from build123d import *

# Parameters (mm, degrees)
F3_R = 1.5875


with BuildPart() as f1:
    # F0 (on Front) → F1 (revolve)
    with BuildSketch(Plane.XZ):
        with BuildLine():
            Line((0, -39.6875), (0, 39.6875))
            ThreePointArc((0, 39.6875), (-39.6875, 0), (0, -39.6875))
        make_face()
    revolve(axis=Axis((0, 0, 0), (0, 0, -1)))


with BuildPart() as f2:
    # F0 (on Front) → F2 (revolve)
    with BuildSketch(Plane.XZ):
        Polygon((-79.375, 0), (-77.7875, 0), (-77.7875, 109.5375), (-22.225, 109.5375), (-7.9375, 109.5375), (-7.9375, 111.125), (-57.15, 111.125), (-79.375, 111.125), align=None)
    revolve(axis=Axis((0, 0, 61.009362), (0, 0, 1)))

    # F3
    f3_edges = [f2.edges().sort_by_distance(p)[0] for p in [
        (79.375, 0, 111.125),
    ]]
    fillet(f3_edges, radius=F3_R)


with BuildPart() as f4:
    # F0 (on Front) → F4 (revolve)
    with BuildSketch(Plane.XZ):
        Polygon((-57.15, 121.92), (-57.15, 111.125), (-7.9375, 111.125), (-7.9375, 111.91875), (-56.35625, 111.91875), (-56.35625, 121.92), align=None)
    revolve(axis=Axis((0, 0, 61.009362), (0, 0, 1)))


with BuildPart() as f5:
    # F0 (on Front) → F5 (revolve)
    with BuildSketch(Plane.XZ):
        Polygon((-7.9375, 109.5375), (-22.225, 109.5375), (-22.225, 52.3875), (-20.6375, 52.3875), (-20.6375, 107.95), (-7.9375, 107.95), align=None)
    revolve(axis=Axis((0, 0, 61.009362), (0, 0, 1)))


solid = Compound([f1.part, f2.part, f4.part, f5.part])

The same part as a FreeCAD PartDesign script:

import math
import FreeCAD as App
import Part
import Sketcher
from FreeCAD import Vector
Q = App.Units.Quantity


def edges_at(feature, points):
    """Names of the edges that pass closest to the given points."""
    edges = feature.Shape.Edges
    near = lambda p: min(range(len(edges)), key=lambda i: edges[i].distToShape(Part.Vertex(*p))[0])
    return sorted({f"Edge{near(p) + 1}" for p in points})


def add_polygon(sketch, points):
    """Adds a closed chain of lines whose ends are joined by coincident constraints."""
    first, n = sketch.GeometryCount, len(points)
    for a, b in zip(points, points[1:] + points[:1]):
        sketch.addGeometry(Part.LineSegment(App.Vector(*a, 0), App.Vector(*b, 0)), False)
    for i in range(n):
        sketch.addConstraint(Sketcher.Constraint("Coincident", first + i, 2, first + (i + 1) % n, 1))

doc = App.newDocument("Part")
body = doc.addObject("PartDesign::Body", "Body")

sketch1 = body.newObject("Sketcher::SketchObject", "Sketch")
sketch1.AttachmentSupport = (doc.getObject("XZ_Plane"), [""])
sketch1.MapMode = "FlatFace"
sketch1.addGeometry([
    Part.LineSegment(Vector(0, -40, 0), Vector(0, 40, 0)),
    Part.ArcOfCircle(Part.Circle(Vector(0, 0, 0), Vector(0, 0, 1), 40), math.radians(90), math.radians(270)),
], False)
sketch1.addConstraint([
    Sketcher.Constraint("Coincident", 0, 1, 1, 2),
    Sketcher.Constraint("Coincident", 1, 1, 0, 2),
    Sketcher.Constraint("Vertical", 0),
    Sketcher.Constraint("Coincident", 1, 3, -1, 1),
    Sketcher.Constraint("PointOnObject", 0, 1, -2),
    Sketcher.Constraint("Radius", 1, Q("1.5625 in")),
])
revolution = body.newObject("PartDesign::Revolution", "Revolution")
revolution.Profile = sketch1
revolution.ReferenceAxis = (sketch1, ["V_Axis"])
revolution.Angle = 360
body2 = doc.addObject("PartDesign::Body", "Body001")

sketch2 = body2.newObject("Sketcher::SketchObject", "Sketch001")
sketch2.AttachmentSupport = (doc.getObject("XZ_Plane001"), [""])
sketch2.MapMode = "FlatFace"
add_polygon(sketch2, [(-79.4, 0), (-77.8, 0), (-77.8, 109.5), (-7.9, 109.5), (-7.9, 111.1), (-79.4, 111.1)])
sketch2.addConstraint([
    Sketcher.Constraint("Horizontal", 0),
    Sketcher.Constraint("Vertical", 1),
    Sketcher.Constraint("Horizontal", 2),
    Sketcher.Constraint("Vertical", 3),
    Sketcher.Constraint("Horizontal", 4),
    Sketcher.Constraint("Vertical", 5),
    Sketcher.Constraint("PointOnObject", 0, 2, -1),
    Sketcher.Constraint("Equal", 0, 3),
    Sketcher.Constraint("DistanceX", 2, 1, 2, 2, Q("2.75 in")),
    Sketcher.Constraint("DistanceX", 0, 1, 0, 2, Q("0.0625 in")),
    Sketcher.Constraint("DistanceY", 1, 1, 1, 2, Q("4.3125 in")),
    Sketcher.Constraint("DistanceX", 0, 2, -1, 1, Q("3.0625 in")),
])
revolution2 = body2.newObject("PartDesign::Revolution", "Revolution001")
revolution2.Profile = sketch2
revolution2.ReferenceAxis = (sketch2, ["V_Axis"])
revolution2.Angle = 360
doc.recompute()

fillet = body2.newObject("PartDesign::Fillet", "Fillet")
fillet.Base = (revolution2, edges_at(revolution2, [(79.375, 0, 111.125)]))
fillet.Radius = Q("0.0625 in")
body3 = doc.addObject("PartDesign::Body", "Body002")

sketch3 = body3.newObject("Sketcher::SketchObject", "Sketch002")
sketch3.AttachmentSupport = (doc.getObject("XZ_Plane002"), [""])
sketch3.MapMode = "FlatFace"
add_polygon(sketch3, [(-57.1, 121.9), (-57.1, 111.1), (-7.9, 111.1), (-7.9, 111.9), (-56.4, 111.9), (-56.4, 121.9)])
sketch3.addConstraint([
    Sketcher.Constraint("Vertical", 0),
    Sketcher.Constraint("Horizontal", 1),
    Sketcher.Constraint("Vertical", 2),
    Sketcher.Constraint("Horizontal", 3),
    Sketcher.Constraint("Vertical", 4),
    Sketcher.Constraint("Horizontal", 5),
    Sketcher.Constraint("Equal", 5, 2),
    Sketcher.Constraint("DistanceY", -1, 1, 4, 2, Q("4.8 in")),
    Sketcher.Constraint("DistanceX", 1, 1, 1, 2, Q("1.9375 in")),
    Sketcher.Constraint("DistanceX", 3, 2, 3, 1, Q("1.90625 in")),
    Sketcher.Constraint("DistanceY", 0, 2, 0, 1, Q("0.425 in")),
    Sketcher.Constraint("DistanceX", 0, 2, -1, 1, Q("2.25 in")),
])
revolution3 = body3.newObject("PartDesign::Revolution", "Revolution002")
revolution3.Profile = sketch3
revolution3.ReferenceAxis = (sketch3, ["V_Axis"])
revolution3.Angle = 360
body4 = doc.addObject("PartDesign::Body", "Body003")

sketch4 = body4.newObject("Sketcher::SketchObject", "Sketch003")
sketch4.AttachmentSupport = (doc.getObject("XZ_Plane003"), [""])
sketch4.MapMode = "FlatFace"
add_polygon(sketch4, [(-7.9, 109.5), (-22.2, 109.5), (-22.2, 52.4), (-20.6, 52.4), (-20.6, 108), (-7.9, 108)])
sketch4.addConstraint([
    Sketcher.Constraint("Horizontal", 0),
    Sketcher.Constraint("Vertical", 1),
    Sketcher.Constraint("Horizontal", 2),
    Sketcher.Constraint("Vertical", 3),
    Sketcher.Constraint("Horizontal", 4),
    Sketcher.Constraint("Vertical", 5),
    Sketcher.Constraint("Equal", 2, 5),
    Sketcher.Constraint("DistanceX", 4, 1, 4, 2, Q("0.5 in")),
    Sketcher.Constraint("DistanceY", 1, 2, 1, 1, Q("2.25 in")),
    Sketcher.Constraint("DistanceX", 0, 2, 0, 1, Q("0.5625 in")),
    Sketcher.Constraint("DistanceY", -1, 1, 3, 2, Q("4.25 in")),
    Sketcher.Constraint("DistanceX", 0, 2, -1, 1, Q("0.875 in")),
])
revolution4 = body4.newObject("PartDesign::Revolution", "Revolution003")
revolution4.Profile = sketch4
revolution4.ReferenceAxis = (sketch4, ["V_Axis"])
revolution4.Angle = 360

doc.recompute()
